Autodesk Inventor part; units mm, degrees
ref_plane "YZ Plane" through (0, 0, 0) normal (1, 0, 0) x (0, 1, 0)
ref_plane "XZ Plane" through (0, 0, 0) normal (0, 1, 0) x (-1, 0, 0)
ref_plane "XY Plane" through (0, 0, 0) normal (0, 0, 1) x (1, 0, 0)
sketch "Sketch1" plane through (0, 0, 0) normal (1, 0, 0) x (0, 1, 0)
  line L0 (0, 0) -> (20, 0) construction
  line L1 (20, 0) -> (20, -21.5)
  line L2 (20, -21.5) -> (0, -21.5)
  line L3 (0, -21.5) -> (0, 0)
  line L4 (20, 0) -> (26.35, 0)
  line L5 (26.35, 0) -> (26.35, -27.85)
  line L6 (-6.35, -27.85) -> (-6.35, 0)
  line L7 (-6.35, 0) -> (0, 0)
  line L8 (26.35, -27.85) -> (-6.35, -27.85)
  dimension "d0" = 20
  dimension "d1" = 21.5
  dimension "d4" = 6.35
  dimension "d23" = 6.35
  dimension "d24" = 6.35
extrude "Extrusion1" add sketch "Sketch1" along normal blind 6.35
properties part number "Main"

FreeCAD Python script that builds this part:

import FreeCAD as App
import Part
import Sketcher
from FreeCAD import Vector
Q = App.Units.Quantity


def add_polygon(sketch, points):
    """Adds a closed chain of lines whose ends are joined by coincident constraints."""
    first, n = sketch.GeometryCount, len(points)
    for a, b in zip(points, points[1:] + points[:1]):
        sketch.addGeometry(Part.LineSegment(App.Vector(*a, 0), App.Vector(*b, 0)), False)
    for i in range(n):
        sketch.addConstraint(Sketcher.Constraint("Coincident", first + i, 2, first + (i + 1) % n, 1))

doc = App.newDocument("Part")
body = doc.addObject("PartDesign::Body", "Body")

# Sketch on YZ plane
sketch1 = body.newObject("Sketcher::SketchObject", "Sketch")
sketch1.AttachmentSupport = (doc.getObject("YZ_Plane"), [""])
sketch1.MapMode = "FlatFace"
add_polygon(sketch1, [(26, 0), (20, 0), (20, -22), (0, -22), (0, 0), (-6, 0), (-6, -28), (26, -28)])  # lines 0-7
sketch1.addConstraint([
    Sketcher.Constraint("Horizontal", 0),
    Sketcher.Constraint("Vertical", 1),
    Sketcher.Constraint("Horizontal", 2),
    Sketcher.Constraint("Vertical", 3),
    Sketcher.Constraint("Horizontal", 4),
    Sketcher.Constraint("Vertical", 5),
    Sketcher.Constraint("Horizontal", 6),
    Sketcher.Constraint("Vertical", 7),
    Sketcher.Constraint("Coincident", 3, 2, -1, 1),
    Sketcher.Constraint("PointOnObject", 0, 2, -1),
    Sketcher.Constraint("Equal", 0, 4),
    Sketcher.Constraint("DistanceX", 2, 2, 2, 1, Q("20 mm")),
    Sketcher.Constraint("DistanceY", 1, 2, 1, 1, Q("21.5 mm")),
    Sketcher.Constraint("DistanceX", 0, 2, 0, 1, Q("6.35 mm")),
    Sketcher.Constraint("DistanceY", 5, 2, 2, 2, Q("6.35 mm")),
])
pad1 = body.newObject("PartDesign::Pad", "Pad")
pad1.Profile = sketch1
pad1.Length = 6.35

doc.recompute()
